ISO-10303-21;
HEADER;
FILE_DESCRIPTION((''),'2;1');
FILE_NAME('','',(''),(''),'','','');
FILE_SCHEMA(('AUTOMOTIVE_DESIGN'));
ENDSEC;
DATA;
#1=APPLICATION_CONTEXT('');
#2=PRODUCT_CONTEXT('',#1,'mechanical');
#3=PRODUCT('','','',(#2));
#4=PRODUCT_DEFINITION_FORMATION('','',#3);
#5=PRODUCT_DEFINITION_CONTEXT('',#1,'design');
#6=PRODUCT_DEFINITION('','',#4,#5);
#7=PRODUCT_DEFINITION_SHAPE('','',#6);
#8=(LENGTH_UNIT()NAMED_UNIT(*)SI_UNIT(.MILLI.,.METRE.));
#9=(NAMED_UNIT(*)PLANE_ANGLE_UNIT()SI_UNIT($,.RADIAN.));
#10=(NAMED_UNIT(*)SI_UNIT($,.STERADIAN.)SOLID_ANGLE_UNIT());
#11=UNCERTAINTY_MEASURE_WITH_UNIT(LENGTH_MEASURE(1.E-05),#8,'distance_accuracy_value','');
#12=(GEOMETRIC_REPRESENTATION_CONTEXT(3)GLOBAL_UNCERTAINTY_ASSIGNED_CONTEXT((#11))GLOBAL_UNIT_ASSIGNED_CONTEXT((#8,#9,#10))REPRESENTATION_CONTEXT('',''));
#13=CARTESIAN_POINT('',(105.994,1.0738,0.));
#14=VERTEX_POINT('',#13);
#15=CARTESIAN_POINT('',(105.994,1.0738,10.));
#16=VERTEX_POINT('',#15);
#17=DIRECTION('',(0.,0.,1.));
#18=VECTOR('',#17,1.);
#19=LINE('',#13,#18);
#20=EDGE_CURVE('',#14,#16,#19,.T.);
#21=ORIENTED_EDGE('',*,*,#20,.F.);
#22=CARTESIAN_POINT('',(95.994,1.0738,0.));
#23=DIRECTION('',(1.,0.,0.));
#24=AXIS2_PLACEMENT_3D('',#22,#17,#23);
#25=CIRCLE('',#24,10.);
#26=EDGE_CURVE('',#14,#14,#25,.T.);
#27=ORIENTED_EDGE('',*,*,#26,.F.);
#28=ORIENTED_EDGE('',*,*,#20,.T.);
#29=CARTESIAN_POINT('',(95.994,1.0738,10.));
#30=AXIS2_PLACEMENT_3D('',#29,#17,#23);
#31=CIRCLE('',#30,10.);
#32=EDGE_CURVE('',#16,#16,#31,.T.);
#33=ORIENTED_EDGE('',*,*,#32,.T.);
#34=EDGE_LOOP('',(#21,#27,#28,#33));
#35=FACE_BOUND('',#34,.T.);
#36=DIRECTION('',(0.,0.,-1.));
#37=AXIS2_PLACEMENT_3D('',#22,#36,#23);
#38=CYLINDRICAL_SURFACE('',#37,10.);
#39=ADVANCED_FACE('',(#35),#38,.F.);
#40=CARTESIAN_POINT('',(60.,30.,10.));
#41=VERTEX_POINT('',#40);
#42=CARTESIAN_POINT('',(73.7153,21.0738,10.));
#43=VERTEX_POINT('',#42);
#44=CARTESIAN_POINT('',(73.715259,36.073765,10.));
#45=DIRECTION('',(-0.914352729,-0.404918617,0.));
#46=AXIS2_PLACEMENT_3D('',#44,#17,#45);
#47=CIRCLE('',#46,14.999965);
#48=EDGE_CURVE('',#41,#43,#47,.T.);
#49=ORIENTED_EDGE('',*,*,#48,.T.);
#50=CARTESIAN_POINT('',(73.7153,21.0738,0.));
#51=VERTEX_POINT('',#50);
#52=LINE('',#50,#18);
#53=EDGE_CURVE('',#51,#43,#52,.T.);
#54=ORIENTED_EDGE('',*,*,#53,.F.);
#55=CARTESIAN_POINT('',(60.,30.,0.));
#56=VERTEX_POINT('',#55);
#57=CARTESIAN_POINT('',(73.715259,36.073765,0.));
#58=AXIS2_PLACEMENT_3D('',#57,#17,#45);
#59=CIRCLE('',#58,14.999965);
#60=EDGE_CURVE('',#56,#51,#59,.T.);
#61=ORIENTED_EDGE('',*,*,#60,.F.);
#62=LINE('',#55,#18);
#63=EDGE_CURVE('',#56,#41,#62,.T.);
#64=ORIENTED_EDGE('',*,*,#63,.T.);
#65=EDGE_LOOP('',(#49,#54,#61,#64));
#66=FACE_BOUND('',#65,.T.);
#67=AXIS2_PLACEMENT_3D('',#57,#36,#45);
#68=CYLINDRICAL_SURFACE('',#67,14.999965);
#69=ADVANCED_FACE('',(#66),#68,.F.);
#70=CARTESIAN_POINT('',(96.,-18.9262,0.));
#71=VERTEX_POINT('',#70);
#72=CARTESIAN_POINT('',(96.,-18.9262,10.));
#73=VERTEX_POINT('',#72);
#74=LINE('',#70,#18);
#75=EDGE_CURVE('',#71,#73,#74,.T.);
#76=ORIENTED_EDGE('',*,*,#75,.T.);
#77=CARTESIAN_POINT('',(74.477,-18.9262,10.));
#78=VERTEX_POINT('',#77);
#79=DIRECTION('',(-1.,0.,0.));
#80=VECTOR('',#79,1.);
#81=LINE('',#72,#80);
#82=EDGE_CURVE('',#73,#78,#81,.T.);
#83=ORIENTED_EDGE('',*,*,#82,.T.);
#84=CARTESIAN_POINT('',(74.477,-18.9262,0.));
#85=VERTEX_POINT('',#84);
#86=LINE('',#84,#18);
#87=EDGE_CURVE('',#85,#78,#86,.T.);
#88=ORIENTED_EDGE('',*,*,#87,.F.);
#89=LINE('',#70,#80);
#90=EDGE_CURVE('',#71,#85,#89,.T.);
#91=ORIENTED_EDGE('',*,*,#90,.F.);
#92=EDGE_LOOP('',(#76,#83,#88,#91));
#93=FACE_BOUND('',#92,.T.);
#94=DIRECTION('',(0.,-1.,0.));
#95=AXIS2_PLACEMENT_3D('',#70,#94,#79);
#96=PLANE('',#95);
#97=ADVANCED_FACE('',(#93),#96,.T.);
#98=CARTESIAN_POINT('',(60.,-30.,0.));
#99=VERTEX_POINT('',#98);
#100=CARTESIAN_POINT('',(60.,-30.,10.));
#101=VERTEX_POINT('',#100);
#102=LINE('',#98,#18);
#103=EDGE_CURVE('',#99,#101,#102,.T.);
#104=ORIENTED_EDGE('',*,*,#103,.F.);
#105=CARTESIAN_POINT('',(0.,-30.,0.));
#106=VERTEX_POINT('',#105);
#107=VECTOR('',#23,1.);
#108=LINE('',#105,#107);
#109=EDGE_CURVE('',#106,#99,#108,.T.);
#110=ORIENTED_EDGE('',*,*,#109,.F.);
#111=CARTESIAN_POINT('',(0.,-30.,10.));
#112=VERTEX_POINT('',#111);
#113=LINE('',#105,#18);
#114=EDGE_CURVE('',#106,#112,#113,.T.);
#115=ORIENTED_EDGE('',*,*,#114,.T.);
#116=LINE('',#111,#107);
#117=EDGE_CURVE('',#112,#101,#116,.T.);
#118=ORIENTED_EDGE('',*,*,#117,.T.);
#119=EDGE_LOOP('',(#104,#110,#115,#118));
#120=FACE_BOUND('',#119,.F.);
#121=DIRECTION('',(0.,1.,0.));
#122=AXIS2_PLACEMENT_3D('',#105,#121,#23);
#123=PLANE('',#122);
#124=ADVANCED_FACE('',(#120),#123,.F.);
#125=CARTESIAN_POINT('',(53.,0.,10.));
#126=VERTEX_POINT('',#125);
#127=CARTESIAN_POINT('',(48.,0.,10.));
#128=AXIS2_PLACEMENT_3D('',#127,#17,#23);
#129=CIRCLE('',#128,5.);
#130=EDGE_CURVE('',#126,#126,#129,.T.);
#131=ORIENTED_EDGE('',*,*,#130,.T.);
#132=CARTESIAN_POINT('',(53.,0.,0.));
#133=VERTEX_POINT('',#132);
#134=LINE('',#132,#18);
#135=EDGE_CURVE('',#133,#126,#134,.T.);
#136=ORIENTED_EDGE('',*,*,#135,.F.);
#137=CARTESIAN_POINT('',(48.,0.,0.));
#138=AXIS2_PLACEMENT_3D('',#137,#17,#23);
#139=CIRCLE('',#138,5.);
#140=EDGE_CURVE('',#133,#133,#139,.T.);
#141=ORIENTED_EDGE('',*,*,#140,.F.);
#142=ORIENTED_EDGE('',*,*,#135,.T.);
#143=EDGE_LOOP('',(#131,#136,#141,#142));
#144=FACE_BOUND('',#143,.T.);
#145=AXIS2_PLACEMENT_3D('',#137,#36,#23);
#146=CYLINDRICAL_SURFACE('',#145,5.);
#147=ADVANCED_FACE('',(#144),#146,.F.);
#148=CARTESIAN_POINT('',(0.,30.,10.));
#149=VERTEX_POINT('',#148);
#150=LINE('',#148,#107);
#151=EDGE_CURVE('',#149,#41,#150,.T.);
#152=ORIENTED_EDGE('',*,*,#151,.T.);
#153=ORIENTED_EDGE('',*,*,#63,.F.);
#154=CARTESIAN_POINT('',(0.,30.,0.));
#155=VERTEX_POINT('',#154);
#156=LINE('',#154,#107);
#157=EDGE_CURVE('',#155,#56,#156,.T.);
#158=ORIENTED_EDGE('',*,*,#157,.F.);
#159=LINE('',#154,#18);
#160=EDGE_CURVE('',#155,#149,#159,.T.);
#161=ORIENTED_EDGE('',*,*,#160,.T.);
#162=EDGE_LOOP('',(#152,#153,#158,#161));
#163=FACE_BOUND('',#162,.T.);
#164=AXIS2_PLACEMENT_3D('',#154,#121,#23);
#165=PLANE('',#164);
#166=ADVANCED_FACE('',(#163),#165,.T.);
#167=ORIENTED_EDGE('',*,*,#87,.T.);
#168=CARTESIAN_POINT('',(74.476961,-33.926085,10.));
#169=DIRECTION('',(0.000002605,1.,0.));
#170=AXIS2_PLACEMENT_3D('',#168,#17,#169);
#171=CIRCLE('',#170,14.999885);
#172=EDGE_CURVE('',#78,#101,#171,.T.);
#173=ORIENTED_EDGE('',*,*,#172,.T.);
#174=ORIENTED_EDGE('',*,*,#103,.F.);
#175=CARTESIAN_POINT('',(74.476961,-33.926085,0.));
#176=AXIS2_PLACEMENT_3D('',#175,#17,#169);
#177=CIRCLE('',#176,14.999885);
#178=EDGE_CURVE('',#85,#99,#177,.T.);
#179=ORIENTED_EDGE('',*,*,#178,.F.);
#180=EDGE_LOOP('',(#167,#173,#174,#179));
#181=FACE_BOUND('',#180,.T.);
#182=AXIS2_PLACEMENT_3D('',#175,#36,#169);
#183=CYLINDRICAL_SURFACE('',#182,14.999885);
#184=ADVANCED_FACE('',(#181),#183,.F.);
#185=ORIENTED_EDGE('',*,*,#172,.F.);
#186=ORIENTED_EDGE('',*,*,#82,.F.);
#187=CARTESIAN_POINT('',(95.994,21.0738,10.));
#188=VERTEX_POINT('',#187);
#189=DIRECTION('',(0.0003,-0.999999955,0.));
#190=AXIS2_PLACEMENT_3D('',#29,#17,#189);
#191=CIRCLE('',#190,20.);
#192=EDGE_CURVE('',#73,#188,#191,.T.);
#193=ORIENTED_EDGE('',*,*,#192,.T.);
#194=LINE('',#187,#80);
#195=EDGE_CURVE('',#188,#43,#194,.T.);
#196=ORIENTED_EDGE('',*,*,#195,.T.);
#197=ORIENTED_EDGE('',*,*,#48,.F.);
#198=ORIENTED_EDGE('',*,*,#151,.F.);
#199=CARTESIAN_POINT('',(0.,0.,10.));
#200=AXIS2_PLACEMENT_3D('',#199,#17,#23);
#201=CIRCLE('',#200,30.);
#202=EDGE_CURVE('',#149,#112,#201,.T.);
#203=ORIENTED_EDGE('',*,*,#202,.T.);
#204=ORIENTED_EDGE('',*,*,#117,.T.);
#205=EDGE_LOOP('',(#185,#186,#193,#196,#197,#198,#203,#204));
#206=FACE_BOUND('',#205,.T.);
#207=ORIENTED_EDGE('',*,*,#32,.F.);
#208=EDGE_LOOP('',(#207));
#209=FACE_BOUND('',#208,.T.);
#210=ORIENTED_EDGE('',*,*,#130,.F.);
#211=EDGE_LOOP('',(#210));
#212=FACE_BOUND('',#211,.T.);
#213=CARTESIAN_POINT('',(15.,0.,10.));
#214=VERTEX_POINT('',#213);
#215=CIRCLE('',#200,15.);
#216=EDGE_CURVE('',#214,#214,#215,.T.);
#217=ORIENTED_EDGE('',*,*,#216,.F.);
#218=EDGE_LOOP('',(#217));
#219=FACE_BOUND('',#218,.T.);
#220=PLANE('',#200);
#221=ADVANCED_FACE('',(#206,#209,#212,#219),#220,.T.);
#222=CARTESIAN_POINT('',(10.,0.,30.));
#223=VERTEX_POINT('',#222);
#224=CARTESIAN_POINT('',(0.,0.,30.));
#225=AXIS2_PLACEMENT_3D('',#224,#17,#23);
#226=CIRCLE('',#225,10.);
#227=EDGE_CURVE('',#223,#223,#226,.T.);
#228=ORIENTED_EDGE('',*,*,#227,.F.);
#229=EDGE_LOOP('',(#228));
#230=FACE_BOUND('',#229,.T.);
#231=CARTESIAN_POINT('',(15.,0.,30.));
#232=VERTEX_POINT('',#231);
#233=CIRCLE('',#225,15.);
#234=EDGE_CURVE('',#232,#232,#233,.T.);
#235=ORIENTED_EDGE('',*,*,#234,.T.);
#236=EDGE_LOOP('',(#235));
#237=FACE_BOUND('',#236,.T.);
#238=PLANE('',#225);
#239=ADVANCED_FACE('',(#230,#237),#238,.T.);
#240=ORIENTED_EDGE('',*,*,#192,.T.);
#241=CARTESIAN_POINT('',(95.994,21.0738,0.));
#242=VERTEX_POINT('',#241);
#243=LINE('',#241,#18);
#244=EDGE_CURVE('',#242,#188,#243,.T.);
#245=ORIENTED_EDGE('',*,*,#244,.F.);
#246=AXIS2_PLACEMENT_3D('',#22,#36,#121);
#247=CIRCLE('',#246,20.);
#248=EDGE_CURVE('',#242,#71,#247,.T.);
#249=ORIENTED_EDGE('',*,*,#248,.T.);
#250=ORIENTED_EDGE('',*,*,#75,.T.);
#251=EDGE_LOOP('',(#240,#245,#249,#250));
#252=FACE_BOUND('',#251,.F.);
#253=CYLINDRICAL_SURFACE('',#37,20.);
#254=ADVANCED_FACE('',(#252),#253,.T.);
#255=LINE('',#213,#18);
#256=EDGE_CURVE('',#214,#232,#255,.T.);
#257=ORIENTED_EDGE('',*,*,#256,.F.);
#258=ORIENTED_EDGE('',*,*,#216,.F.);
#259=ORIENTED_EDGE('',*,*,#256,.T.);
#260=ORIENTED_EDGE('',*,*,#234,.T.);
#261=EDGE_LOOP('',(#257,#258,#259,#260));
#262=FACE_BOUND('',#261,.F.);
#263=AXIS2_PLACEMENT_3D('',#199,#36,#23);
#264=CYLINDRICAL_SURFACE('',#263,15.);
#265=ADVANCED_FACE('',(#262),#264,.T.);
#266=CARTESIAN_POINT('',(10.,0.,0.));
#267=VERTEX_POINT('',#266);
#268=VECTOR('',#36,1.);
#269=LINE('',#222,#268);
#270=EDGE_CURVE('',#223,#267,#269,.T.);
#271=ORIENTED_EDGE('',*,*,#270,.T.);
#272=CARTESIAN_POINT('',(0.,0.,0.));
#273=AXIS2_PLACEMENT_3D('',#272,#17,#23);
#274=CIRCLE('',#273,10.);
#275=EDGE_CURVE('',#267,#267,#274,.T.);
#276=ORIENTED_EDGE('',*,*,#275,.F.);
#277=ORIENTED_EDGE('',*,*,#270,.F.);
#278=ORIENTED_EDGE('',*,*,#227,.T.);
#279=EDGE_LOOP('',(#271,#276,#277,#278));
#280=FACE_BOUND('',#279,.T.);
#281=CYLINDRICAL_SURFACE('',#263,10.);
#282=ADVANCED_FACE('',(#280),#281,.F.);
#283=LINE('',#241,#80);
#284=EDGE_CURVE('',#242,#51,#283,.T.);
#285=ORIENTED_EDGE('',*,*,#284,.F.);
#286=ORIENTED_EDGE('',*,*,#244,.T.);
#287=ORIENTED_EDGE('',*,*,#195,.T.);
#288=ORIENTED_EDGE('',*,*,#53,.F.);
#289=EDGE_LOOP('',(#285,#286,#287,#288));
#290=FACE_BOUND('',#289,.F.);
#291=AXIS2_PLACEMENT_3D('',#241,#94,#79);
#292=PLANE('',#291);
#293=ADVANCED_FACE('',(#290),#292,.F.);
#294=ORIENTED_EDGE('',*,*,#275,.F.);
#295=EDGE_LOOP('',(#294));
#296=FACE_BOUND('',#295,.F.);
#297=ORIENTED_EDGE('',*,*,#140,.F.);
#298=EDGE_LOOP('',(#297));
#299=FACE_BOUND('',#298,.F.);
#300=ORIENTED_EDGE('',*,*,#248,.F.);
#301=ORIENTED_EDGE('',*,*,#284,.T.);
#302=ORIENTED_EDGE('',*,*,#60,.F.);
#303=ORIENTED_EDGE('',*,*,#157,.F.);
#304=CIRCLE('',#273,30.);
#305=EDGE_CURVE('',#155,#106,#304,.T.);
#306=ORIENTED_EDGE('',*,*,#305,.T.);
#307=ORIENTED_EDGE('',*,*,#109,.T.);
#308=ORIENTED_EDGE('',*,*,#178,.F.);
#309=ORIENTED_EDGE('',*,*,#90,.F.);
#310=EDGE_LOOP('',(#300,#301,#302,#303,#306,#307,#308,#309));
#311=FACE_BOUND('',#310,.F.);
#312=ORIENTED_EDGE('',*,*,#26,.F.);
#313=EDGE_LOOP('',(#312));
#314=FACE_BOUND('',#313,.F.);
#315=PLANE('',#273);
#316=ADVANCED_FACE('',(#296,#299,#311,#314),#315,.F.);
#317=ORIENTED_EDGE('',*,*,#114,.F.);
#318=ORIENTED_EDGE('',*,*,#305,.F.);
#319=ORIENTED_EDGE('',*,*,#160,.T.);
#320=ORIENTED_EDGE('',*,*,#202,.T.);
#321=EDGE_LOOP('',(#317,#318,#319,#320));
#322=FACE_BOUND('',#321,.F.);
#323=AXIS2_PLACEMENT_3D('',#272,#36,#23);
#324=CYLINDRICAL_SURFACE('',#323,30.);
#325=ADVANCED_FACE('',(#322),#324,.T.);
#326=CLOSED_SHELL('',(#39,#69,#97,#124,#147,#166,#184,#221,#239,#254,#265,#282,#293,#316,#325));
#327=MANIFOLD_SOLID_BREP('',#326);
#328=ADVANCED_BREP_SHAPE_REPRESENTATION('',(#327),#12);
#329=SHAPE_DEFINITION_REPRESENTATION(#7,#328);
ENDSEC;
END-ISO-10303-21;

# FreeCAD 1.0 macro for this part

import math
import FreeCAD as App
import Part
import Sketcher
Q = App.Units.Quantity

doc = App.newDocument("Part")
params = doc.addObject("Spreadsheet::Sheet", "Params")
for row, (alias, value) in enumerate([
    ("sketch1_diameter", "20 mm"),
    ("sketch1_diameter2", "10 mm"),
    ("sketch1_diameter3", "20 mm"),
    ("sketch1_radius", "30 mm"),
    ("sketch1_radius2", "15 mm"),
    ("pad1_length", "10 mm"),
    ("sketch2_diameter", "30 mm"),
    ("sketch2_diameter2", "20 mm"),
    ("pad2_length", "20 mm"),
], start=1):
    params.set(f"A{row}", alias)
    params.set(f"B{row}", "=" + value)
    params.setAlias(f"B{row}", alias)

body = doc.addObject("PartDesign::Body", "Body")

sketch1 = body.newObject("Sketcher::SketchObject", "Sketch")
sketch1.AttachmentSupport = (doc.getObject("XY_Plane"), [""])
sketch1.MapMode = "FlatFace"
sketch1.addGeometry([
    Part.ArcOfCircle(Part.Circle(App.Vector(0, 0, 0), App.Vector(0, 0, 1), 30), math.radians(90), math.radians(270)),
    Part.LineSegment(App.Vector(0, -30, 0), App.Vector(60, -30, 0)),
    Part.ArcOfCircle(Part.Circle(App.Vector(74.477, -33.9262, 0), App.Vector(0, 0, 1), 15), math.radians(90), math.radians(164.826222)),
    Part.LineSegment(App.Vector(74.477, -18.9262, 0), App.Vector(96, -18.9262, 0)),
    Part.ArcOfCircle(Part.Circle(App.Vector(95.994, 1.0738, 0), App.Vector(0, 0, 1), 20), math.radians(-89.982811), math.radians(90)),
    Part.LineSegment(App.Vector(95.994, 21.0738, 0), App.Vector(73.7153, 21.0738, 0)),
    Part.ArcOfCircle(Part.Circle(App.Vector(73.7153, 36.0738, 0), App.Vector(0, 0, 1), 15.000017), math.radians(-156.113914), math.radians(-90)),
    Part.LineSegment(App.Vector(60, 30, 0), App.Vector(0, 30, 0)),
    Part.Circle(App.Vector(0, 0, 0), App.Vector(0, 0, 1), 10),
    Part.Circle(App.Vector(48, 0, 0), App.Vector(0, 0, 1), 5),
    Part.Circle(App.Vector(95.994, 1.0738, 0), App.Vector(0, 0, 1), 10),
], False)
sketch1.addConstraint([
    Sketcher.Constraint("Coincident", 0, 2, 1, 1),
    Sketcher.Constraint("Coincident", 1, 2, 2, 2),
    Sketcher.Constraint("Coincident", 2, 1, 3, 1),
    Sketcher.Constraint("Coincident", 3, 2, 4, 1),
    Sketcher.Constraint("Coincident", 4, 2, 5, 1),
    Sketcher.Constraint("Coincident", 5, 2, 6, 2),
    Sketcher.Constraint("Coincident", 6, 1, 7, 1),
    Sketcher.Constraint("Coincident", 7, 2, 0, 1),
    Sketcher.Constraint("Horizontal", 1),
    Sketcher.Constraint("Horizontal", 3),
    Sketcher.Constraint("Horizontal", 5),
    Sketcher.Constraint("Horizontal", 7),
    Sketcher.Constraint("Coincident", 0, 3, -1, 1),
    Sketcher.Constraint("Coincident", 8, 3, -1, 1),
    Sketcher.Constraint("Coincident", 10, 3, 4, 3),
    Sketcher.Constraint("PointOnObject", 9, 3, -1),
    Sketcher.Constraint("PointOnObject", 0, 2, -2),
    Sketcher.Constraint("PointOnObject", 7, 2, -2),
    Sketcher.Constraint("Diameter", 8, Q("20 mm")),
    Sketcher.Constraint("Diameter", 9, Q("10 mm")),
    Sketcher.Constraint("Diameter", 10, Q("20 mm")),
    Sketcher.Constraint("Radius", 0, Q("30 mm")),
    Sketcher.Constraint("Radius", 2, Q("15 mm")),
    Sketcher.Constraint("Radius", 4, Q("20 mm")),
    Sketcher.Constraint("Radius", 6, Q("15 mm")),
    Sketcher.Constraint("DistanceX", 1, 1, 1, 2, Q("60 mm")),
    Sketcher.Constraint("DistanceX", 7, 2, 7, 1, Q("60 mm")),
    Sketcher.Constraint("DistanceX", -1, 1, 9, 3, Q("48 mm")),
    Sketcher.Constraint("DistanceX", -1, 1, 3, 2, Q("96 mm")),
    Sketcher.Constraint("DistanceX", 3, 1, 3, 2, Q("21.523 mm")),
    Sketcher.Constraint("DistanceX", 5, 2, 5, 1, Q("22.2787 mm")),
    Sketcher.Constraint("DistanceX", -1, 1, 2, 3, Q("74.477 mm")),
    Sketcher.Constraint("DistanceX", -1, 1, 4, 3, Q("95.994 mm")),
    Sketcher.Constraint("DistanceX", -1, 1, 4, 2, Q("95.994 mm")),
])
sketch1.setExpression("Constraints[18]", "Params.sketch1_diameter")
sketch1.setExpression("Constraints[19]", "Params.sketch1_diameter2")
sketch1.setExpression("Constraints[20]", "Params.sketch1_diameter3")
sketch1.setExpression("Constraints[21]", "Params.sketch1_radius")
sketch1.setExpression("Constraints[22]", "Params.sketch1_radius2")
pad1 = body.newObject("PartDesign::Pad", "Pad")
pad1.Profile = sketch1
pad1.setExpression("Length", "Params.pad1_length")

sketch2 = body.newObject("Sketcher::SketchObject", "Sketch001")
sketch2.AttachmentSupport = (doc.getObject("XY_Plane"), [""])
sketch2.MapMode = "FlatFace"
sketch2.AttachmentOffset = App.Placement(App.Vector(0, 0, 10), App.Rotation())
sketch2.addGeometry([
    Part.Circle(App.Vector(0, 0, 0), App.Vector(0, 0, 1), 15),
    Part.Circle(App.Vector(0, 0, 0), App.Vector(0, 0, 1), 10),
], False)
sketch2.addConstraint([
    Sketcher.Constraint("Coincident", 0, 3, -1, 1),
    Sketcher.Constraint("Coincident", 1, 3, -1, 1),
    Sketcher.Constraint("Diameter", 0, Q("30 mm")),
    Sketcher.Constraint("Diameter", 1, Q("20 mm")),
])
sketch2.setExpression("Constraints[2]", "Params.sketch2_diameter")
sketch2.setExpression("Constraints[3]", "Params.sketch2_diameter2")
pad2 = body.newObject("PartDesign::Pad", "Pad001")
pad2.Profile = sketch2
pad2.setExpression("Length", "Params.pad2_length")

doc.recompute()
